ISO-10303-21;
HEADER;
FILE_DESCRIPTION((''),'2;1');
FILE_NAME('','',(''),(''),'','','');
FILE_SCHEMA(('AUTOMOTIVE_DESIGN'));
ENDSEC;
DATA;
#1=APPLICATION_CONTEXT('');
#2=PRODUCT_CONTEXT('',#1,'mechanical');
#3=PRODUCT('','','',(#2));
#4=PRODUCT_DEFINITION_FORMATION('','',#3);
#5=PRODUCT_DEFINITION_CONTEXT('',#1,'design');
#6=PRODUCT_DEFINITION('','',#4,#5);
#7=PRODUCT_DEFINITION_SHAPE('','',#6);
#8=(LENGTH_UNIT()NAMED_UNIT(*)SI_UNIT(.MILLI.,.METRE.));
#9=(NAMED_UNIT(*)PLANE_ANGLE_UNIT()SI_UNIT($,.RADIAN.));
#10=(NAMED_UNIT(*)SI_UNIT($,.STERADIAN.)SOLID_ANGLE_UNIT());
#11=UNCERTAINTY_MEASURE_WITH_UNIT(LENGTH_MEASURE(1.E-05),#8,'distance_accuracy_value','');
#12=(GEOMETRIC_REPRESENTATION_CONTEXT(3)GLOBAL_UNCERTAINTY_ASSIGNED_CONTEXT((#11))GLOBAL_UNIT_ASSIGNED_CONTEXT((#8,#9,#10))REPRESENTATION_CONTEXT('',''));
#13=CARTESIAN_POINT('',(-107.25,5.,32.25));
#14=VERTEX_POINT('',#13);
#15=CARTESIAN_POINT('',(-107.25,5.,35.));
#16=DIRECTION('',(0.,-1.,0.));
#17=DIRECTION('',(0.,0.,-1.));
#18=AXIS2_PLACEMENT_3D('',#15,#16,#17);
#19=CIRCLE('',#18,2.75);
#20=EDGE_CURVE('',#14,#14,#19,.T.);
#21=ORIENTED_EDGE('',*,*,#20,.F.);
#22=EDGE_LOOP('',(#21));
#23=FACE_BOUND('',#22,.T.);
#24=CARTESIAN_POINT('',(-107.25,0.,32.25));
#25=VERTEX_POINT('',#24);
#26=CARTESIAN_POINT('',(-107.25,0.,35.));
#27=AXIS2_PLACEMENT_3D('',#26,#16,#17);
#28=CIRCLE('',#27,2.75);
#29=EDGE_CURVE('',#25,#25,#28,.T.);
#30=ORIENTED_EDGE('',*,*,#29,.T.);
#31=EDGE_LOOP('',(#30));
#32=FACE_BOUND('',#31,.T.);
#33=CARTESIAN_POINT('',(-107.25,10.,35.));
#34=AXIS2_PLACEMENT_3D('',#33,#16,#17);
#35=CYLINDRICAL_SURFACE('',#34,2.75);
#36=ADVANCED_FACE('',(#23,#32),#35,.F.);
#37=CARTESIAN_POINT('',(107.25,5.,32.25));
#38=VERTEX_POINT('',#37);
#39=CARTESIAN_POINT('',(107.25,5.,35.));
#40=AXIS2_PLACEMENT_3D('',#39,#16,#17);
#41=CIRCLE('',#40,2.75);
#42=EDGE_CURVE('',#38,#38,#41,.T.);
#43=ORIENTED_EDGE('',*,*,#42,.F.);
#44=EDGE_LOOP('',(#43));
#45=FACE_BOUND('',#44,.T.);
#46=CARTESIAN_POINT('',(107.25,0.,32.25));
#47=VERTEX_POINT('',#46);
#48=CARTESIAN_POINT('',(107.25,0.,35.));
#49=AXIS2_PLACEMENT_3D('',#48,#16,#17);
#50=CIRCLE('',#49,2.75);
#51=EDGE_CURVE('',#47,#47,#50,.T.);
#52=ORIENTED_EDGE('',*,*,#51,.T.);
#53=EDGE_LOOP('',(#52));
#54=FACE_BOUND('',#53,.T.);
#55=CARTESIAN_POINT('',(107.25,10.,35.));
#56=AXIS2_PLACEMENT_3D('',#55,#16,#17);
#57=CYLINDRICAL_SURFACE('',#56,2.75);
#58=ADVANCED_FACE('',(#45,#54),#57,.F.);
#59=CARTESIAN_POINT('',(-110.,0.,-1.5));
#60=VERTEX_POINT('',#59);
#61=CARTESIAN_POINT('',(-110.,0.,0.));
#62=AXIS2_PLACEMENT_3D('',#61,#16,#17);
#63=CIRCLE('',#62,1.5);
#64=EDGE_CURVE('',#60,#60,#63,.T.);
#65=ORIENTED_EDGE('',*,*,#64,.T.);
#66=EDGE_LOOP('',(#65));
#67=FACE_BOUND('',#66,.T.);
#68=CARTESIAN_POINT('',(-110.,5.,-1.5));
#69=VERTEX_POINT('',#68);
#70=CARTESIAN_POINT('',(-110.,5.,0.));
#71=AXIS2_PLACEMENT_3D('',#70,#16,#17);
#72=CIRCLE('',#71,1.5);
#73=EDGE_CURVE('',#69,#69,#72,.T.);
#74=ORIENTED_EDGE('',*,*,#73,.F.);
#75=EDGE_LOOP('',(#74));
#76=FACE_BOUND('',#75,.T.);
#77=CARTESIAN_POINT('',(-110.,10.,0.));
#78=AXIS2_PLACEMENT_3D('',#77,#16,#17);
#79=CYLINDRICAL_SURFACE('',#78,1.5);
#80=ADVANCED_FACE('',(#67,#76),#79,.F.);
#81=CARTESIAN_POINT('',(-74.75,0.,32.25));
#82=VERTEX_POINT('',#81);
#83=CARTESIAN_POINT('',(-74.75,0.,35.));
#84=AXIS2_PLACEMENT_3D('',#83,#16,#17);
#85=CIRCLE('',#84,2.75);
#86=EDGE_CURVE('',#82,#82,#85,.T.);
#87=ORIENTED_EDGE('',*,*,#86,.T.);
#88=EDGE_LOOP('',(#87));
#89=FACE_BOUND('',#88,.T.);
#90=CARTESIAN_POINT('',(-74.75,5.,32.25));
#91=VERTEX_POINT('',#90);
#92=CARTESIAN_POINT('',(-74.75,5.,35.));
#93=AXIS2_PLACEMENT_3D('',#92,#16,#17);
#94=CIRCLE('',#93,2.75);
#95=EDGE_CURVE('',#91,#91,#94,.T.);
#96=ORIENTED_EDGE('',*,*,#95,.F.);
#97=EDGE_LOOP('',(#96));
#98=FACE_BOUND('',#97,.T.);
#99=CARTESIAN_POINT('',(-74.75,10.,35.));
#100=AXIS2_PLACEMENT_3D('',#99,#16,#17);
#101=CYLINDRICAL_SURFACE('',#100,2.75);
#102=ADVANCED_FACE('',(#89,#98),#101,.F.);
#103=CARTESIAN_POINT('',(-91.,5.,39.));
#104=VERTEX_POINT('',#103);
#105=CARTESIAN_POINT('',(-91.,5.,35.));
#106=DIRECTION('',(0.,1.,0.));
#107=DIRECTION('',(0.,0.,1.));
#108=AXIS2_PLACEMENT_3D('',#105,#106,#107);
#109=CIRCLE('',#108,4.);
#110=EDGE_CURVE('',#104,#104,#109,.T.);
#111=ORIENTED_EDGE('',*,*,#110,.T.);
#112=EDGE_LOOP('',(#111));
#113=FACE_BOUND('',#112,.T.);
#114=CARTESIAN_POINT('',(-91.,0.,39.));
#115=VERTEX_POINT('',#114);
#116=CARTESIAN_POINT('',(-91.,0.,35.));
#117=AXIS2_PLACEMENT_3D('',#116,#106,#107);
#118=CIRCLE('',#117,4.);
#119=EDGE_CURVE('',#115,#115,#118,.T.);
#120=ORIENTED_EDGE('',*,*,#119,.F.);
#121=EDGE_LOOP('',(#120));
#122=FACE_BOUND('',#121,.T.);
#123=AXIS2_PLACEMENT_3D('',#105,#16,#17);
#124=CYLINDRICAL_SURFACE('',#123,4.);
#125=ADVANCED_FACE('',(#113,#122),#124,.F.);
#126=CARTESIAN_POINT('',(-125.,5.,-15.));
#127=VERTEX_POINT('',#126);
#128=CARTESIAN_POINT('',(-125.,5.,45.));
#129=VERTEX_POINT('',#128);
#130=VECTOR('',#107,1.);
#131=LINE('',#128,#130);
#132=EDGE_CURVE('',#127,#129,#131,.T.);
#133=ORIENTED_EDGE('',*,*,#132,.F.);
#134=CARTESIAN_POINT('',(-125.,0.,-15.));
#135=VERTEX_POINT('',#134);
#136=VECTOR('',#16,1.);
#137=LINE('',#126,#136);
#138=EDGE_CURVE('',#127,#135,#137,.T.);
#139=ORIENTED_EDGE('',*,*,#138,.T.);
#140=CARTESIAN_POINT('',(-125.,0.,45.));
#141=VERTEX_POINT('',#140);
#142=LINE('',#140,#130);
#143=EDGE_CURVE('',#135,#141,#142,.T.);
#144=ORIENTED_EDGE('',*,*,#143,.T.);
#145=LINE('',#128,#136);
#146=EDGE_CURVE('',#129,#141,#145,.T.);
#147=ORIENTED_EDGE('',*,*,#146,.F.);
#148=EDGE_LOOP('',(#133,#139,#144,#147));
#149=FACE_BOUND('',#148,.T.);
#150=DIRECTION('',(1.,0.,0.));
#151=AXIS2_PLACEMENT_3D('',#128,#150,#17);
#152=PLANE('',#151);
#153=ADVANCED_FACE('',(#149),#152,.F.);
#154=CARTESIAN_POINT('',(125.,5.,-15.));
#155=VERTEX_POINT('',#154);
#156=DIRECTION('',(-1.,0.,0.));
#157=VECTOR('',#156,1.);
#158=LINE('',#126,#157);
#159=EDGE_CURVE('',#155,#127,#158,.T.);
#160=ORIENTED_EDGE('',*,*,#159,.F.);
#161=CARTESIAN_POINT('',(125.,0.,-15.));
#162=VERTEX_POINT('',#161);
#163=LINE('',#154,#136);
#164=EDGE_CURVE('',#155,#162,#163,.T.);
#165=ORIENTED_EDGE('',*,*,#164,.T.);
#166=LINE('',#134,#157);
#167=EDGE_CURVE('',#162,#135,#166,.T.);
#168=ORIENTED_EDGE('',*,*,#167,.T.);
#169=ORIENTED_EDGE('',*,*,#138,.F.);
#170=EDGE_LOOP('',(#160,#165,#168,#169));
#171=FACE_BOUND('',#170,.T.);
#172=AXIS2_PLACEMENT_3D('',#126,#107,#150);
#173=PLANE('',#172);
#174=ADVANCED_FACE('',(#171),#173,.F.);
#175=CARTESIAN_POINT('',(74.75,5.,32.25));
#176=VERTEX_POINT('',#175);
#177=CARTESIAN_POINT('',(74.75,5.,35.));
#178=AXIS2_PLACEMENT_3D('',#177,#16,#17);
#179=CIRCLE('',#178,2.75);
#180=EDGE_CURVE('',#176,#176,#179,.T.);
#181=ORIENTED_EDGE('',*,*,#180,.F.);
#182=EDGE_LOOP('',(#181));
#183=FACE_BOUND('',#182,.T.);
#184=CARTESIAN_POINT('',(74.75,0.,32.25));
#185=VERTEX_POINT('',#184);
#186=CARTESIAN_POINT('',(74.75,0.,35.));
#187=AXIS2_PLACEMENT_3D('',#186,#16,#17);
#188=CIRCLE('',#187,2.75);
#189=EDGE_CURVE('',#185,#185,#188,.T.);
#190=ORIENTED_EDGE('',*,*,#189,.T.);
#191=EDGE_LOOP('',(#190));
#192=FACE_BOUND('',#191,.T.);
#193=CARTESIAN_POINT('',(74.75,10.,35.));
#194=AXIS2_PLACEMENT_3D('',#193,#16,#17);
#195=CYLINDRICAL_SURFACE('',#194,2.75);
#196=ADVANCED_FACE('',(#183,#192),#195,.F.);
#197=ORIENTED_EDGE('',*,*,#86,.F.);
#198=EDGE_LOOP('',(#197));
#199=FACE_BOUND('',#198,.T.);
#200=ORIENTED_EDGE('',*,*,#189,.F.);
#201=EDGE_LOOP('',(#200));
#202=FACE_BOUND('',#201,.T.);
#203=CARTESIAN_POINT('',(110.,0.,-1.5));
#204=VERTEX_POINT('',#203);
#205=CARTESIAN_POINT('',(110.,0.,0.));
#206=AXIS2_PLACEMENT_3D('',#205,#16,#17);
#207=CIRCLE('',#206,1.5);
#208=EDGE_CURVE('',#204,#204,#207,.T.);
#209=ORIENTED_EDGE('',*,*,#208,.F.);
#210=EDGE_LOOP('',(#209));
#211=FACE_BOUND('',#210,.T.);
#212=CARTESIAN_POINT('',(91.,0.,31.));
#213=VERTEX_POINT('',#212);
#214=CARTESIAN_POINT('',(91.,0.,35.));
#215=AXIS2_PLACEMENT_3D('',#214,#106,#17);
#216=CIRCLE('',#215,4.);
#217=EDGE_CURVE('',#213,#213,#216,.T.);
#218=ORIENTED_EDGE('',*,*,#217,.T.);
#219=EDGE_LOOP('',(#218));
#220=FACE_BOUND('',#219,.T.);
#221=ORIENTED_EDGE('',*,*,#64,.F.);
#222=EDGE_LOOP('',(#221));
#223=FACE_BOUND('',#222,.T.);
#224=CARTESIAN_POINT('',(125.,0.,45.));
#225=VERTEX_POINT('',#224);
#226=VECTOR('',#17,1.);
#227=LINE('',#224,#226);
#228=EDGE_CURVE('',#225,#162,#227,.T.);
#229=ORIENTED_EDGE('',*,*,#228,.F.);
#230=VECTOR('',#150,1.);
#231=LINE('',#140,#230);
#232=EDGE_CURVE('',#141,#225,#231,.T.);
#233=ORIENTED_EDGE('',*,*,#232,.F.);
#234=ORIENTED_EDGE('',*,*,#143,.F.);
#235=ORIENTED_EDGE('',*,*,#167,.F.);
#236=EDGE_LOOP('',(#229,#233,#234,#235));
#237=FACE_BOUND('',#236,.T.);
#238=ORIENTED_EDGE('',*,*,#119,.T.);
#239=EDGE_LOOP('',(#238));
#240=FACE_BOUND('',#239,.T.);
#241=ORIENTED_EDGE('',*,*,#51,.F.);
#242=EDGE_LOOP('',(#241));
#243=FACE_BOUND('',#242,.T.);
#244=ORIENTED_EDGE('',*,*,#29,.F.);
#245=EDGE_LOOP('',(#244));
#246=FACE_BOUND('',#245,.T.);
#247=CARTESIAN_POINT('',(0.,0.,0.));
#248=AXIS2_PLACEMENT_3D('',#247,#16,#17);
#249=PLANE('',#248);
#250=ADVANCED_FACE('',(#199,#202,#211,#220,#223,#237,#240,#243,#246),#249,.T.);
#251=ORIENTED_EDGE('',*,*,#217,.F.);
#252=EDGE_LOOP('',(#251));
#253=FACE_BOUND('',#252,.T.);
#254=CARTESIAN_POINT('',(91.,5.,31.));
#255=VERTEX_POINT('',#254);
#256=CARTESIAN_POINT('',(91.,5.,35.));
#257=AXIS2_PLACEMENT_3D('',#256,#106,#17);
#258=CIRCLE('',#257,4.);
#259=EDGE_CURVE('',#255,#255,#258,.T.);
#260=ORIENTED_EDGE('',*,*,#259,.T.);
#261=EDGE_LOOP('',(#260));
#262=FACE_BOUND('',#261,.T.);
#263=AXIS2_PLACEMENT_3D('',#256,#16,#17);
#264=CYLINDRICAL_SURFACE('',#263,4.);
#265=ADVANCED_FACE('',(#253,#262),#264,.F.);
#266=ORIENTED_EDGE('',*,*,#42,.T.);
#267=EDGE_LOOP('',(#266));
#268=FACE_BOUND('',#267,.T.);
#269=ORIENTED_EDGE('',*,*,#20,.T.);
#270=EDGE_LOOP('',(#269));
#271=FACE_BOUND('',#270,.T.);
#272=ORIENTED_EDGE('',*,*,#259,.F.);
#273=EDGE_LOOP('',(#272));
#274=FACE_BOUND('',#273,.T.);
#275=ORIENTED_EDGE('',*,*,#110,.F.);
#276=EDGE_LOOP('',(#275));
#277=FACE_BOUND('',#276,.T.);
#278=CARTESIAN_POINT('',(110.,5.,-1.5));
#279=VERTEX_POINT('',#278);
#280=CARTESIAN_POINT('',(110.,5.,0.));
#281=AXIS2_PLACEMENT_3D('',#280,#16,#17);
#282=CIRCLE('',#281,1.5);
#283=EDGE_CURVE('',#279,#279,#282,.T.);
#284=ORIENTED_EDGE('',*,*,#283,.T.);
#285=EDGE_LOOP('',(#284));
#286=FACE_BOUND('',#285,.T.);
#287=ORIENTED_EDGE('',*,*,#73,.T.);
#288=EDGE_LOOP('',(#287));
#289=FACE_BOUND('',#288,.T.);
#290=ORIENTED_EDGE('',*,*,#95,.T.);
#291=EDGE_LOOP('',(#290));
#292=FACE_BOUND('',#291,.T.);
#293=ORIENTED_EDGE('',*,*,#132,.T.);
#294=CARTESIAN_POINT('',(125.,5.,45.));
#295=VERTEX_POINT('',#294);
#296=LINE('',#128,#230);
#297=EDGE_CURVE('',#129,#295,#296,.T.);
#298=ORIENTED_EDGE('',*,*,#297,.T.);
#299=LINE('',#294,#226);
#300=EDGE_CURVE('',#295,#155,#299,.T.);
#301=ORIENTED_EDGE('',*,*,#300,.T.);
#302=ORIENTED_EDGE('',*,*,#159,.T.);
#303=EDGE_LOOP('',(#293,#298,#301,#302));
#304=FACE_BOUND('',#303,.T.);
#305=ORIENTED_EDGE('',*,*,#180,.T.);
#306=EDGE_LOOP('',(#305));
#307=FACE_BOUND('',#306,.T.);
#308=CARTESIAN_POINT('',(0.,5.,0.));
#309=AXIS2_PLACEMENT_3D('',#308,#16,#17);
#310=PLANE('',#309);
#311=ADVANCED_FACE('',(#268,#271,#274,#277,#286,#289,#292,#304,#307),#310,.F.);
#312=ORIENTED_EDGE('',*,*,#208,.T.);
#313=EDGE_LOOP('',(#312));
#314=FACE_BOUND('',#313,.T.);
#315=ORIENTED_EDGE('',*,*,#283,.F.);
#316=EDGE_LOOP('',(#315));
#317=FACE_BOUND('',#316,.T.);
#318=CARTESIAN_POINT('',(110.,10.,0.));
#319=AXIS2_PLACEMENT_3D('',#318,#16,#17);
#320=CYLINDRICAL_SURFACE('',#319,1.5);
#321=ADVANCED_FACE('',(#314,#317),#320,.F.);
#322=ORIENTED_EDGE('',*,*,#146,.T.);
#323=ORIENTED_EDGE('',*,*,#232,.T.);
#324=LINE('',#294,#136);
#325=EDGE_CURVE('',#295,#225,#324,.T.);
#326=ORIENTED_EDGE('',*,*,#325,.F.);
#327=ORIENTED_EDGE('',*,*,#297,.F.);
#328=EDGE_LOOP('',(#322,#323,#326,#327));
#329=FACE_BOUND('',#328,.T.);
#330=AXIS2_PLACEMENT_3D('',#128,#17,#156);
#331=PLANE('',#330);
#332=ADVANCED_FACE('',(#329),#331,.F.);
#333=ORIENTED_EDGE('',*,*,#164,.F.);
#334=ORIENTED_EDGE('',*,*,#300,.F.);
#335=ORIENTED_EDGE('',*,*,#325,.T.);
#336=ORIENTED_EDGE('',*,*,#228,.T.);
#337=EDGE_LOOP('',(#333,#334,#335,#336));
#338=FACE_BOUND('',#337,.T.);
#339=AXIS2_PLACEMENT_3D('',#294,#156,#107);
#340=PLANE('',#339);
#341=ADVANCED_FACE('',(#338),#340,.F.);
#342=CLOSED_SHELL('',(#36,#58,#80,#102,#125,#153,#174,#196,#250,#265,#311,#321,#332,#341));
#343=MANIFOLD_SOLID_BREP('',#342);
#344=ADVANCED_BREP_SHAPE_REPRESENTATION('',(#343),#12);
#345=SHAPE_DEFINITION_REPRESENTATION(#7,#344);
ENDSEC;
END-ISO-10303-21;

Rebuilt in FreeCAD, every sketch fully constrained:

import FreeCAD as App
import Part
import Sketcher

V = App.Vector
Q = App.Units.Quantity

doc = App.newDocument("Part")
body = doc.addObject("PartDesign::Body", "Body")

# Sketch on XZ plane
sketch1 = doc.addObject("Sketcher::SketchObject", "Sketch")
body.addObject(sketch1)
sketch1.AttachmentSupport = (doc.XZ_Plane, [""])
sketch1.MapMode = "FlatFace"
sketch1.addGeometry(Part.LineSegment(V(-125, -15, 0), V(-125, 45, 0)), False)
sketch1.addGeometry(Part.LineSegment(V(-125, 45, 0), V(125, 45, 0)), False)
sketch1.addGeometry(Part.LineSegment(V(125, 45, 0), V(125, -15, 0)), False)
sketch1.addGeometry(Part.LineSegment(V(125, -15, 0), V(-125, -15, 0)), False)
sketch1.addGeometry(Part.Circle(V(-91, 35, 0), V(0, 0, 1), 4), False)
sketch1.addGeometry(Part.Circle(V(91, 35, 0), V(0, 0, 1), 4), False)
sketch1.addConstraint(Sketcher.Constraint("Coincident", 0, 2, 1, 1))
sketch1.addConstraint(Sketcher.Constraint("Coincident", 1, 2, 2, 1))
sketch1.addConstraint(Sketcher.Constraint("Coincident", 2, 2, 3, 1))
sketch1.addConstraint(Sketcher.Constraint("Coincident", 3, 2, 0, 1))
sketch1.addConstraint(Sketcher.Constraint("Vertical", 0))
sketch1.addConstraint(Sketcher.Constraint("Horizontal", 1))
sketch1.addConstraint(Sketcher.Constraint("Vertical", 2))
sketch1.addConstraint(Sketcher.Constraint("Horizontal", 3))
sketch1.addConstraint(Sketcher.Constraint("Equal", 4, 5))
sketch1.addConstraint(Sketcher.Constraint("Symmetric", 4, 3, 5, 3, -2))
sketch1.addConstraint(Sketcher.Constraint("Diameter", 4, Q("8 mm")))
sketch1.addConstraint(Sketcher.Constraint("DistanceX", 1, 1, 1, 2, Q("250 mm")))
sketch1.addConstraint(Sketcher.Constraint("DistanceY", 0, 1, 0, 2, Q("60 mm")))
sketch1.addConstraint(Sketcher.Constraint("DistanceX", 4, 3, -1, 1, Q("91 mm")))
sketch1.addConstraint(Sketcher.Constraint("DistanceY", -1, 1, 4, 3, Q("35 mm")))
sketch1.addConstraint(Sketcher.Constraint("DistanceX", 0, 2, -1, 1, Q("125 mm")))
sketch1.addConstraint(Sketcher.Constraint("DistanceY", -1, 1, 0, 2, Q("45 mm")))
pad1 = doc.addObject("PartDesign::Pad", "Pad")
body.addObject(pad1)
pad1.Profile = sketch1
pad1.Length = 5
pad1.Reversed = True

# Sketch on XZ plane
sketch2 = doc.addObject("Sketcher::SketchObject", "Sketch001")
body.addObject(sketch2)
sketch2.AttachmentSupport = (doc.XZ_Plane, [""])
sketch2.MapMode = "FlatFace"
sketch2.addGeometry(Part.Circle(V(110, 0, 0), V(0, 0, 1), 1.5), False)
sketch2.addGeometry(Part.Circle(V(74.8, 35, 0), V(0, 0, 1), 2.8), False)
sketch2.addGeometry(Part.Circle(V(107.2, 35, 0), V(0, 0, 1), 2.8), False)
sketch2.addGeometry(Part.Circle(V(-110, 0, 0), V(0, 0, 1), 1.5), False)
sketch2.addGeometry(Part.Circle(V(-74.8, 35, 0), V(0, 0, 1), 2.8), False)
sketch2.addGeometry(Part.Circle(V(-107.2, 35, 0), V(0, 0, 1), 2.8), False)
sketch2.addConstraint(Sketcher.Constraint("Equal", 1, 2))
sketch2.addConstraint(Sketcher.Constraint("Equal", 0, 3))
sketch2.addConstraint(Sketcher.Constraint("Equal", 2, 4))
sketch2.addConstraint(Sketcher.Constraint("Equal", 4, 5))
sketch2.addConstraint(Sketcher.Constraint("Symmetric", 0, 3, 3, 3, -1, 1))
sketch2.addConstraint(Sketcher.Constraint("Symmetric", 1, 3, 4, 3, -2))
sketch2.addConstraint(Sketcher.Constraint("Symmetric", 2, 3, 5, 3, -2))
sketch2.addConstraint(Sketcher.Constraint("PointOnObject", 0, 3, -1))
sketch2.addConstraint(Sketcher.Constraint("Horizontal", 1, 3, 2, 3))
sketch2.addConstraint(Sketcher.Constraint("Diameter", 0, Q("3 mm")))
sketch2.addConstraint(Sketcher.Constraint("Diameter", 1, Q("5.5 mm")))
sketch2.addConstraint(Sketcher.Constraint("DistanceX", -1, 1, 0, 3, Q("110 mm")))
sketch2.addConstraint(Sketcher.Constraint("DistanceY", -1, 1, 1, 3, Q("35 mm")))
sketch2.addConstraint(Sketcher.Constraint("DistanceX", 4, 3, 2, 3, Q("182 mm")))
sketch2.addConstraint(Sketcher.Constraint("DistanceX", 1, 3, 2, 3, Q("32.5 mm")))
pocket1 = doc.addObject("PartDesign::Pocket", "Pocket")
body.addObject(pocket1)
pocket1.Profile = sketch2
pocket1.Length = 10

doc.recompute()
